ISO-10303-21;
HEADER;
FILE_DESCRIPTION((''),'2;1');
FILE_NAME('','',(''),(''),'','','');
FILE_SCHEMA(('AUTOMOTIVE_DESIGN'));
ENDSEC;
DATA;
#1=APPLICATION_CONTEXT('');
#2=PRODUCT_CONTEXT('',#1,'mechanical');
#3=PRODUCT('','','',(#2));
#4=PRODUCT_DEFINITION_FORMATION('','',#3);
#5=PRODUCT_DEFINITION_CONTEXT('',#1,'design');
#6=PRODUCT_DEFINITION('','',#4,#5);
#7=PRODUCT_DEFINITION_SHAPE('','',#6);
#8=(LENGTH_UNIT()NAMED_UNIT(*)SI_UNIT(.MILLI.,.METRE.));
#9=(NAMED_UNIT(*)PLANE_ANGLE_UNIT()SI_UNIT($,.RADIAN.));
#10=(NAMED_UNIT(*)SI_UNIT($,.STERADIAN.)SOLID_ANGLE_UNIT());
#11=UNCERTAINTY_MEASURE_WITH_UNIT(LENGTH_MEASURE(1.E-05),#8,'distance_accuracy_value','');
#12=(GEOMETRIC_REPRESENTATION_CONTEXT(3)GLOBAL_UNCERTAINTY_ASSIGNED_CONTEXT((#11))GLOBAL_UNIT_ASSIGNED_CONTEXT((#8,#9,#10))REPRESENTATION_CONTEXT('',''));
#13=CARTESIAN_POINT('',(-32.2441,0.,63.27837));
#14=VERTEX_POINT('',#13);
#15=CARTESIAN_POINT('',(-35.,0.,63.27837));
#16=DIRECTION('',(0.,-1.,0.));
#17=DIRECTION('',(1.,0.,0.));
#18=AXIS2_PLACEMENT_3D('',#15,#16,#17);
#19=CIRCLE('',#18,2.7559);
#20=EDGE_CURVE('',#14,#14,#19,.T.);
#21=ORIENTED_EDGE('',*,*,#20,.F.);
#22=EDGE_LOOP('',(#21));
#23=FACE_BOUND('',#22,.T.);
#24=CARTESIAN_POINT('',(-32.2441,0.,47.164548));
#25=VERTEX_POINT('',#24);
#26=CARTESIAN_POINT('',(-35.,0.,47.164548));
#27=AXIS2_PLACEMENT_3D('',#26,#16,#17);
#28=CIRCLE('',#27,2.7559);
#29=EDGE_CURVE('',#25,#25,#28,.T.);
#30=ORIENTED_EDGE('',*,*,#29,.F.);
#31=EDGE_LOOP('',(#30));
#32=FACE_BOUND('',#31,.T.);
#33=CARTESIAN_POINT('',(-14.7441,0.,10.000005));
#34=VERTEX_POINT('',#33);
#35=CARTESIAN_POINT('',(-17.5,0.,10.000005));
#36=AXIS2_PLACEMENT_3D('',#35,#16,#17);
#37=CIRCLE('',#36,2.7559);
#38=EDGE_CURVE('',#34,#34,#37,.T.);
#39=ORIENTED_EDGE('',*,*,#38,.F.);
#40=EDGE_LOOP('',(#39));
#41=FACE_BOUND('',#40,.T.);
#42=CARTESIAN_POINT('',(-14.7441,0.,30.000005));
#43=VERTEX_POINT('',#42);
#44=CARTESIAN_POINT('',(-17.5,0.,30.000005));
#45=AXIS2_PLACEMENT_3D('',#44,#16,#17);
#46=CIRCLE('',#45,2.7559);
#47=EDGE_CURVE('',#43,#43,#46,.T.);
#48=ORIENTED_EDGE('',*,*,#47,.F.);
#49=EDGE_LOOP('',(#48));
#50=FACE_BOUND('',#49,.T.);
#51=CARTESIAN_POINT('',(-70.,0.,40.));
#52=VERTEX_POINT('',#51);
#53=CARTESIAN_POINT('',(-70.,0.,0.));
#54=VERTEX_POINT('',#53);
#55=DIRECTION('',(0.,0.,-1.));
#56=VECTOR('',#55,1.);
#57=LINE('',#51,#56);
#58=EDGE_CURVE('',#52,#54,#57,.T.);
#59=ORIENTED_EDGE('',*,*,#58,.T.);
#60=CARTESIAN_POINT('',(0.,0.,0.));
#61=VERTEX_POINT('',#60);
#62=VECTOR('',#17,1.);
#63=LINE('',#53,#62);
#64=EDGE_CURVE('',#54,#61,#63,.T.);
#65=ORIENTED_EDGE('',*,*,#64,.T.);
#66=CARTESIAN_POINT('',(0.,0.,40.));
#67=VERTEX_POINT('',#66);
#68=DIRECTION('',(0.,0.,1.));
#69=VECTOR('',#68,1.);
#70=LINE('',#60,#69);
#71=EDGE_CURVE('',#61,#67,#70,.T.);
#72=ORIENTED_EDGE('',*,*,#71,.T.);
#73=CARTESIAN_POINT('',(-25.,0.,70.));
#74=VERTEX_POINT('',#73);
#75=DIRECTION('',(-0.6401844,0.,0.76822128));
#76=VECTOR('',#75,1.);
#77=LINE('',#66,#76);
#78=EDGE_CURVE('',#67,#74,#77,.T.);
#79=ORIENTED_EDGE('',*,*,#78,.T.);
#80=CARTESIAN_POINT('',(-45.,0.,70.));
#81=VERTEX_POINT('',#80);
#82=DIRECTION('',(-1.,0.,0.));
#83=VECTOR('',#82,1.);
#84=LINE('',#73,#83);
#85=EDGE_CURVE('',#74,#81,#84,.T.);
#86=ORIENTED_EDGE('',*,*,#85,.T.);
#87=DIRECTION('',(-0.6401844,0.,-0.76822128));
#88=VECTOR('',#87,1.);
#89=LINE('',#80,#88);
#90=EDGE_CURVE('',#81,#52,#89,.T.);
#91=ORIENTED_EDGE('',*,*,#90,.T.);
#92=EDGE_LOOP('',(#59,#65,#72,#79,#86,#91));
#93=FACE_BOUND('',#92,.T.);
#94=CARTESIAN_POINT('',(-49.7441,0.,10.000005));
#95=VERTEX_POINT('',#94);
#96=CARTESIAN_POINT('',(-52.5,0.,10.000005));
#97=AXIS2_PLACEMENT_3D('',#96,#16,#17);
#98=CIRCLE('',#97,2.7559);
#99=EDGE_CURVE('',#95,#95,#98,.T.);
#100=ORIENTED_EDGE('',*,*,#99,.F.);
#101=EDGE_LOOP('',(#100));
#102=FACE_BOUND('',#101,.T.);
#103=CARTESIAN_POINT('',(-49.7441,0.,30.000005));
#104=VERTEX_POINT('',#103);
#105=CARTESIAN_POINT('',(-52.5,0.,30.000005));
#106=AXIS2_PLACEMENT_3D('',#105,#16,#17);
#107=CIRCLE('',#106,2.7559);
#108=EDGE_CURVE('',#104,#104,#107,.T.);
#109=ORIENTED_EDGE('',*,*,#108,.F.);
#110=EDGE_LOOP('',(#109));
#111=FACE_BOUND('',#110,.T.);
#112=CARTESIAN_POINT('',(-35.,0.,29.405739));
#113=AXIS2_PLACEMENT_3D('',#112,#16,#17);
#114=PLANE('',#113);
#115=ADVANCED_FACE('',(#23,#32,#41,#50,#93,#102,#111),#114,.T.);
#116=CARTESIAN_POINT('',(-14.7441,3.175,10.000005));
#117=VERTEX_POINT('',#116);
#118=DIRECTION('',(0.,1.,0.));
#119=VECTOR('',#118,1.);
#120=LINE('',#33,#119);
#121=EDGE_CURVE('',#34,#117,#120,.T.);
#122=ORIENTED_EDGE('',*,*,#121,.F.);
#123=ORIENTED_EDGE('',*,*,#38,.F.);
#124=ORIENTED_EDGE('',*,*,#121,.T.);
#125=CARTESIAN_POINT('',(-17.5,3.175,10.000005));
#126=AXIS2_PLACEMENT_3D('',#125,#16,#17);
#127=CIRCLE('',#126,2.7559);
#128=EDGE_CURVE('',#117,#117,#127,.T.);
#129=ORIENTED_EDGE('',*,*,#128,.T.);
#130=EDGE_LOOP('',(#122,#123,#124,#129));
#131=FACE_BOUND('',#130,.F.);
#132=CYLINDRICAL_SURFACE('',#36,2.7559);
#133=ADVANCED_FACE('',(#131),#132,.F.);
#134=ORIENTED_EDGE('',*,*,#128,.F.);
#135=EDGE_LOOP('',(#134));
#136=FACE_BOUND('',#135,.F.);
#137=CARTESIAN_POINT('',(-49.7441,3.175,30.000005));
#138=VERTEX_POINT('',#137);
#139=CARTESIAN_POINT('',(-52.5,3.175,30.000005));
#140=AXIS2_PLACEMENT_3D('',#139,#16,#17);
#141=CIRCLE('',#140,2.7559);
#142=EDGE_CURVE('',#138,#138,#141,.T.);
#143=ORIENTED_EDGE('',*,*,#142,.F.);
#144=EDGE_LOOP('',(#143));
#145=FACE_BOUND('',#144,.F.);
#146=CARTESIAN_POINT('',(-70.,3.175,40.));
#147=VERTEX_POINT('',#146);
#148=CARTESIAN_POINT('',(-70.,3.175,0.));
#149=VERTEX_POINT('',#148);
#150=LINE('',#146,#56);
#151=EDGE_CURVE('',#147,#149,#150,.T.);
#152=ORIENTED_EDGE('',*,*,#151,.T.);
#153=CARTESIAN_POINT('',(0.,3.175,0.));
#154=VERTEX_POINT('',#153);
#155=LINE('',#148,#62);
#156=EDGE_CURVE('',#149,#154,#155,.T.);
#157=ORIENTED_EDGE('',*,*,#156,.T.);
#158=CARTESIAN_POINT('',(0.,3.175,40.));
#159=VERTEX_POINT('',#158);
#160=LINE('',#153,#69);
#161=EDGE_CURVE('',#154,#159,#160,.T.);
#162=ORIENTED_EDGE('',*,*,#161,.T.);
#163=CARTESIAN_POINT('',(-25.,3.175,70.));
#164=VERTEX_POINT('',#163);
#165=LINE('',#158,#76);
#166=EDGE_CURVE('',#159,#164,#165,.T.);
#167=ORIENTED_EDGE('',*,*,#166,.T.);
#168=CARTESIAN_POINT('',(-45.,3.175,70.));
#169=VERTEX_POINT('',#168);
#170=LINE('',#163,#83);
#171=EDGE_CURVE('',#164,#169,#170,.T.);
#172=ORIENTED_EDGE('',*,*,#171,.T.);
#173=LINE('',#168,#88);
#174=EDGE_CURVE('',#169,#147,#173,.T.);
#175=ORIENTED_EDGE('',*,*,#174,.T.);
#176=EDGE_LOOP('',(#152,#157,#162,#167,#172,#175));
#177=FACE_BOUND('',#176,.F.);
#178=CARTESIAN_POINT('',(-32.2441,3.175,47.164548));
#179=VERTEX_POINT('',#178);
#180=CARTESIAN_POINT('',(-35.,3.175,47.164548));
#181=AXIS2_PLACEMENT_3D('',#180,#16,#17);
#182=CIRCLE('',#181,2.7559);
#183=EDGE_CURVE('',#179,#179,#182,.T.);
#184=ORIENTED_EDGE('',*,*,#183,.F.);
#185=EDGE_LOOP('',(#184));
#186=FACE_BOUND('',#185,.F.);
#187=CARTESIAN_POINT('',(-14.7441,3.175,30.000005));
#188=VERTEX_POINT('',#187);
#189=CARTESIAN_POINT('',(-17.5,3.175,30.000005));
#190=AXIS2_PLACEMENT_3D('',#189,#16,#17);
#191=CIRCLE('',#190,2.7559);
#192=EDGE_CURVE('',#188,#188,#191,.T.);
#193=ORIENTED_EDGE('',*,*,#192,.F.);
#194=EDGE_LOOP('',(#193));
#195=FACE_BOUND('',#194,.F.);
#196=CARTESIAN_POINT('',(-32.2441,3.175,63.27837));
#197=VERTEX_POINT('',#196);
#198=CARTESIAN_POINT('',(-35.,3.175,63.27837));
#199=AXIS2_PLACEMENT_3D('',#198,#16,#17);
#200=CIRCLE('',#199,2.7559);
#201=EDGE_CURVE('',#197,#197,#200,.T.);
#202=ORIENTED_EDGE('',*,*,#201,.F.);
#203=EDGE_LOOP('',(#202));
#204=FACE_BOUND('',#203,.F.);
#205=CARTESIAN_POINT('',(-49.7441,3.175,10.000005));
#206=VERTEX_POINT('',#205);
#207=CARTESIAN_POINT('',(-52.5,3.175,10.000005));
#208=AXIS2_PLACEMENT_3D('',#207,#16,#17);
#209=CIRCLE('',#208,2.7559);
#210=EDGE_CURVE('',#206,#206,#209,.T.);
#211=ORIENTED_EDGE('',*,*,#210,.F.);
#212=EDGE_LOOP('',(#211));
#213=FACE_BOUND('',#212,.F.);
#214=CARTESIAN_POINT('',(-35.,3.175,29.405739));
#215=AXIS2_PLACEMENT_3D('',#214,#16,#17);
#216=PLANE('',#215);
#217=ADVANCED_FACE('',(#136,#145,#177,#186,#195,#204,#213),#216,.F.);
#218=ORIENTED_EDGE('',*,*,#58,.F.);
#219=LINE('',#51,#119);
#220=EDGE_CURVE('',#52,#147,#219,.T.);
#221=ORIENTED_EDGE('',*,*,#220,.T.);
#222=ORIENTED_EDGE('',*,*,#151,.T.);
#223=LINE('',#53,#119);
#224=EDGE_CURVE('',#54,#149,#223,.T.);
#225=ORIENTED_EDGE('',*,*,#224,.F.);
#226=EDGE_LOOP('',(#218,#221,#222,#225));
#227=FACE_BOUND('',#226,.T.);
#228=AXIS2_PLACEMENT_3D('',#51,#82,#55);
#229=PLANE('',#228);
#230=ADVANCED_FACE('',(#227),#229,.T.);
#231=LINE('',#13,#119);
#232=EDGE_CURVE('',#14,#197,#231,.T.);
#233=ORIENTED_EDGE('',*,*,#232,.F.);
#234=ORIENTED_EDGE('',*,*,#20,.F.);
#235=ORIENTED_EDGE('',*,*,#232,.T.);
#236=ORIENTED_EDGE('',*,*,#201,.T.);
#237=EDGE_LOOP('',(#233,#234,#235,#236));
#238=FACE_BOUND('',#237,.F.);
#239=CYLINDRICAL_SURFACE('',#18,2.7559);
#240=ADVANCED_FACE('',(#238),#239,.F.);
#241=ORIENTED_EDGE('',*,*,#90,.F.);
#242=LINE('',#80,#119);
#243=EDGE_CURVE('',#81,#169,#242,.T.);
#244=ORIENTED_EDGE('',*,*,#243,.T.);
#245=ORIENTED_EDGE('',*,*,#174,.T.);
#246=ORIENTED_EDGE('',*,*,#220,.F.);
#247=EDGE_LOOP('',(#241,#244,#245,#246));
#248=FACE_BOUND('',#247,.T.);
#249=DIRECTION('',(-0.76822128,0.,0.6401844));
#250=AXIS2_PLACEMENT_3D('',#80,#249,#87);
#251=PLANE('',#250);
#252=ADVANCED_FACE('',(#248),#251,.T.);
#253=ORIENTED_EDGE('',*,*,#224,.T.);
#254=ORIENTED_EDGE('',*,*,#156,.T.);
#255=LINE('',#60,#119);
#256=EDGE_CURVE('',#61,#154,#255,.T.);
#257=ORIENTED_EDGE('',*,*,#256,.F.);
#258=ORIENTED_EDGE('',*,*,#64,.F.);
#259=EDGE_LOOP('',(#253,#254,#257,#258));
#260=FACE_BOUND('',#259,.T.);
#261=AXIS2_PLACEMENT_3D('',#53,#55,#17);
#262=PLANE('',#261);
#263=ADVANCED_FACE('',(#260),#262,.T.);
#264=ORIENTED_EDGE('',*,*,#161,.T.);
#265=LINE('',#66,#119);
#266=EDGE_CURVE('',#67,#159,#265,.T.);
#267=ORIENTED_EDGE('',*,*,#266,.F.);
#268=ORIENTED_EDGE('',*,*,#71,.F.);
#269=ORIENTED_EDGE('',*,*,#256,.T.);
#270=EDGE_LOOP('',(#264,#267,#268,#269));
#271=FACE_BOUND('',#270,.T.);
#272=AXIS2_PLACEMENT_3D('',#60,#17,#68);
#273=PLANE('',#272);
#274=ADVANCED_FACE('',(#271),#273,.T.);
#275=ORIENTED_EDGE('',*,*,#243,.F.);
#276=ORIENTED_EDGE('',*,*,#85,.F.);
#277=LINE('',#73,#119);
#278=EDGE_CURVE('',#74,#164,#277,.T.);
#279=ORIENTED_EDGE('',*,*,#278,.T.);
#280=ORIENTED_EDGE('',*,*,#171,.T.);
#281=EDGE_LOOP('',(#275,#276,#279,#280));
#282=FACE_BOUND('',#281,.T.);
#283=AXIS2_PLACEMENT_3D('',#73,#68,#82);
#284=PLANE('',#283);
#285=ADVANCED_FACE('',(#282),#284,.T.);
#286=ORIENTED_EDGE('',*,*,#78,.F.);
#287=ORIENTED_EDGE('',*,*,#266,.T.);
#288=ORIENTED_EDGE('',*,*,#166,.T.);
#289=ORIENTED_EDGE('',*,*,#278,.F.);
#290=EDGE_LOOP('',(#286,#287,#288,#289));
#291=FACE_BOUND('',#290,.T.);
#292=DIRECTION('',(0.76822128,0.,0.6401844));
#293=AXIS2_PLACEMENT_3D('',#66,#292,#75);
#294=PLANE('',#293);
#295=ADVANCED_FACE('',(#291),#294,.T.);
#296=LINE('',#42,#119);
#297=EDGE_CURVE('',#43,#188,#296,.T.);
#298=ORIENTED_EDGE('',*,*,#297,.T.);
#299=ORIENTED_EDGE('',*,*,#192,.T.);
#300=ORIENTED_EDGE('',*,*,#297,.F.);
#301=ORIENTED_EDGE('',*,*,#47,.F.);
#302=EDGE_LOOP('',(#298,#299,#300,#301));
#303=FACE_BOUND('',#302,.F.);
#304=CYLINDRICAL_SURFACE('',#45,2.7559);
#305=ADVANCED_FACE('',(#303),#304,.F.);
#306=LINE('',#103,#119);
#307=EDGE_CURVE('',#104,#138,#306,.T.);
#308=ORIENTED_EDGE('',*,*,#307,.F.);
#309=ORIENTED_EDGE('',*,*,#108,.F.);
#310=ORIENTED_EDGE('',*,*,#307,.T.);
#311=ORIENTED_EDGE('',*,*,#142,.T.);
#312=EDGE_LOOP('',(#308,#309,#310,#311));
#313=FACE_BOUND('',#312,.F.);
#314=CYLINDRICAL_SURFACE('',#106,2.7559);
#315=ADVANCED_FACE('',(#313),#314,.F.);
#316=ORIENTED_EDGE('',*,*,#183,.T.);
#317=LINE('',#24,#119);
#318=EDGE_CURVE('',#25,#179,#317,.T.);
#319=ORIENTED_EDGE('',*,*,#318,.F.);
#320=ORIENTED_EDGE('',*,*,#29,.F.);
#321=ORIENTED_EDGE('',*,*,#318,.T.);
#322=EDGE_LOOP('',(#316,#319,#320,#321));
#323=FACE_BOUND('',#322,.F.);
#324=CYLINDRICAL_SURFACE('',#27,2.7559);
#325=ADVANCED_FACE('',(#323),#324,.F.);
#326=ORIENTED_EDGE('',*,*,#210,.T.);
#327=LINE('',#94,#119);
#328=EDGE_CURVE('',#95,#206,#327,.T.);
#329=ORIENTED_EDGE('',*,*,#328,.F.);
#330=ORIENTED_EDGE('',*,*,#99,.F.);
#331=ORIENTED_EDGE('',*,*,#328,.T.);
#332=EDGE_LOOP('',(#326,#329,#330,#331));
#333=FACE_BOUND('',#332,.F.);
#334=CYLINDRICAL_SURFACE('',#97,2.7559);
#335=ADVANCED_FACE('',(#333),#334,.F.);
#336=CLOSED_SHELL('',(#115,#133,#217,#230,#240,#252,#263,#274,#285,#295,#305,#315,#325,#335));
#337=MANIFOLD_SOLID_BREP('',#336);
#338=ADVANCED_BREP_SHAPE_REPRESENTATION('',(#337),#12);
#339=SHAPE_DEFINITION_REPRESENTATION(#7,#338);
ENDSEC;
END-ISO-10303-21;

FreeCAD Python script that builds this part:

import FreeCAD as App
import Part
import Sketcher


def add_polygon(sketch, points):
    """Adds a closed chain of lines whose ends are joined by coincident constraints."""
    first, n = sketch.GeometryCount, len(points)
    for a, b in zip(points, points[1:] + points[:1]):
        sketch.addGeometry(Part.LineSegment(App.Vector(*a, 0), App.Vector(*b, 0)), False)
    for i in range(n):
        sketch.addConstraint(Sketcher.Constraint("Coincident", first + i, 2, first + (i + 1) % n, 1))

doc = App.newDocument("Part")
params = doc.addObject("Spreadsheet::Sheet", "Params")
for row, (alias, value) in enumerate([
    ("sketch1_width", "70 mm"),
    ("sketch1_width2", "20 mm"),
    ("sketch1_height", "40 mm"),
    ("pad1_length", "3.175 mm"),
], start=1):
    params.set(f"A{row}", alias)
    params.set(f"B{row}", "=" + value)
    params.setAlias(f"B{row}", alias)

body = doc.addObject("PartDesign::Body", "Body")

sketch1 = body.newObject("Sketcher::SketchObject", "Sketch")
sketch1.AttachmentSupport = (doc.getObject("XZ_Plane"), [""])
sketch1.MapMode = "FlatFace"
add_polygon(sketch1, [(-70, 0), (0, 0), (0, 40), (-25, 70), (-45, 70), (-70, 40)])
sketch1.addGeometry(Part.Circle(App.Vector(-52.5, 10, 0), App.Vector(0, 0, 1), 2.8), False)
sketch1.addGeometry(Part.Circle(App.Vector(-52.5, 30, 0), App.Vector(0, 0, 1), 2.8), False)
sketch1.addGeometry(Part.Circle(App.Vector(-17.5, 10, 0), App.Vector(0, 0, 1), 2.8), False)
sketch1.addGeometry(Part.Circle(App.Vector(-17.5, 30, 0), App.Vector(0, 0, 1), 2.8), False)
sketch1.addGeometry(Part.Circle(App.Vector(-35, 47.2, 0), App.Vector(0, 0, 1), 2.8), False)
sketch1.addGeometry(Part.Circle(App.Vector(-35, 63.3, 0), App.Vector(0, 0, 1), 2.8), False)
sketch1.addConstraint([
    Sketcher.Constraint("Horizontal", 0),
    Sketcher.Constraint("Vertical", 1),
    Sketcher.Constraint("Horizontal", 3),
    Sketcher.Constraint("Vertical", 5),
    Sketcher.Constraint("Coincident", 0, 2, -1, 1),
    Sketcher.Constraint("Equal", 6, 7),
    Sketcher.Constraint("Equal", 7, 8),
    Sketcher.Constraint("Equal", 8, 9),
    Sketcher.Constraint("Equal", 9, 10),
    Sketcher.Constraint("Equal", 10, 11),
    Sketcher.Constraint("Horizontal", 6, 3, 8, 3),
    Sketcher.Constraint("Horizontal", 7, 3, 9, 3),
    Sketcher.Constraint("Horizontal", 1, 2, 4, 2),
    Sketcher.Constraint("Vertical", 6, 3, 7, 3),
    Sketcher.Constraint("Vertical", 8, 3, 9, 3),
    Sketcher.Constraint("Vertical", 10, 3, 11, 3),
    Sketcher.Constraint("Equal", 2, 4),
    Sketcher.Constraint("DistanceX", 0, 1, 0, 2, 70.0),
    Sketcher.Constraint("DistanceX", 3, 2, 3, 1, 20.0),
    Sketcher.Constraint("DistanceY", 1, 1, 1, 2, 40.0),
    Sketcher.Constraint("DistanceX", 10, 3, -1, 1, 35.0),
    Sketcher.Constraint("DistanceY", -1, 1, 2, 2, 70.0),
    Sketcher.Constraint("DistanceY", 6, 3, 7, 3, 20.0),
    Sketcher.Constraint("DistanceX", 6, 3, 8, 3, 35.0),
    Sketcher.Constraint("Diameter", 6, 5.5118),
    Sketcher.Constraint("DistanceX", 6, 3, -1, 1, 52.5),
    Sketcher.Constraint("DistanceY", -1, 1, 10, 3, 47.164548),
    Sketcher.Constraint("DistanceY", -1, 1, 11, 3, 63.27837),
    Sketcher.Constraint("DistanceY", -1, 1, 6, 3, 10.000005),
])
sketch1.setExpression("Constraints[23]", "Params.sketch1_width")
sketch1.setExpression("Constraints[24]", "Params.sketch1_width2")
sketch1.setExpression("Constraints[25]", "Params.sketch1_height")
pad1 = body.newObject("PartDesign::Pad", "Pad")
pad1.Profile = sketch1
pad1.setExpression("Length", "Params.pad1_length")
pad1.Reversed = True

doc.recompute()
